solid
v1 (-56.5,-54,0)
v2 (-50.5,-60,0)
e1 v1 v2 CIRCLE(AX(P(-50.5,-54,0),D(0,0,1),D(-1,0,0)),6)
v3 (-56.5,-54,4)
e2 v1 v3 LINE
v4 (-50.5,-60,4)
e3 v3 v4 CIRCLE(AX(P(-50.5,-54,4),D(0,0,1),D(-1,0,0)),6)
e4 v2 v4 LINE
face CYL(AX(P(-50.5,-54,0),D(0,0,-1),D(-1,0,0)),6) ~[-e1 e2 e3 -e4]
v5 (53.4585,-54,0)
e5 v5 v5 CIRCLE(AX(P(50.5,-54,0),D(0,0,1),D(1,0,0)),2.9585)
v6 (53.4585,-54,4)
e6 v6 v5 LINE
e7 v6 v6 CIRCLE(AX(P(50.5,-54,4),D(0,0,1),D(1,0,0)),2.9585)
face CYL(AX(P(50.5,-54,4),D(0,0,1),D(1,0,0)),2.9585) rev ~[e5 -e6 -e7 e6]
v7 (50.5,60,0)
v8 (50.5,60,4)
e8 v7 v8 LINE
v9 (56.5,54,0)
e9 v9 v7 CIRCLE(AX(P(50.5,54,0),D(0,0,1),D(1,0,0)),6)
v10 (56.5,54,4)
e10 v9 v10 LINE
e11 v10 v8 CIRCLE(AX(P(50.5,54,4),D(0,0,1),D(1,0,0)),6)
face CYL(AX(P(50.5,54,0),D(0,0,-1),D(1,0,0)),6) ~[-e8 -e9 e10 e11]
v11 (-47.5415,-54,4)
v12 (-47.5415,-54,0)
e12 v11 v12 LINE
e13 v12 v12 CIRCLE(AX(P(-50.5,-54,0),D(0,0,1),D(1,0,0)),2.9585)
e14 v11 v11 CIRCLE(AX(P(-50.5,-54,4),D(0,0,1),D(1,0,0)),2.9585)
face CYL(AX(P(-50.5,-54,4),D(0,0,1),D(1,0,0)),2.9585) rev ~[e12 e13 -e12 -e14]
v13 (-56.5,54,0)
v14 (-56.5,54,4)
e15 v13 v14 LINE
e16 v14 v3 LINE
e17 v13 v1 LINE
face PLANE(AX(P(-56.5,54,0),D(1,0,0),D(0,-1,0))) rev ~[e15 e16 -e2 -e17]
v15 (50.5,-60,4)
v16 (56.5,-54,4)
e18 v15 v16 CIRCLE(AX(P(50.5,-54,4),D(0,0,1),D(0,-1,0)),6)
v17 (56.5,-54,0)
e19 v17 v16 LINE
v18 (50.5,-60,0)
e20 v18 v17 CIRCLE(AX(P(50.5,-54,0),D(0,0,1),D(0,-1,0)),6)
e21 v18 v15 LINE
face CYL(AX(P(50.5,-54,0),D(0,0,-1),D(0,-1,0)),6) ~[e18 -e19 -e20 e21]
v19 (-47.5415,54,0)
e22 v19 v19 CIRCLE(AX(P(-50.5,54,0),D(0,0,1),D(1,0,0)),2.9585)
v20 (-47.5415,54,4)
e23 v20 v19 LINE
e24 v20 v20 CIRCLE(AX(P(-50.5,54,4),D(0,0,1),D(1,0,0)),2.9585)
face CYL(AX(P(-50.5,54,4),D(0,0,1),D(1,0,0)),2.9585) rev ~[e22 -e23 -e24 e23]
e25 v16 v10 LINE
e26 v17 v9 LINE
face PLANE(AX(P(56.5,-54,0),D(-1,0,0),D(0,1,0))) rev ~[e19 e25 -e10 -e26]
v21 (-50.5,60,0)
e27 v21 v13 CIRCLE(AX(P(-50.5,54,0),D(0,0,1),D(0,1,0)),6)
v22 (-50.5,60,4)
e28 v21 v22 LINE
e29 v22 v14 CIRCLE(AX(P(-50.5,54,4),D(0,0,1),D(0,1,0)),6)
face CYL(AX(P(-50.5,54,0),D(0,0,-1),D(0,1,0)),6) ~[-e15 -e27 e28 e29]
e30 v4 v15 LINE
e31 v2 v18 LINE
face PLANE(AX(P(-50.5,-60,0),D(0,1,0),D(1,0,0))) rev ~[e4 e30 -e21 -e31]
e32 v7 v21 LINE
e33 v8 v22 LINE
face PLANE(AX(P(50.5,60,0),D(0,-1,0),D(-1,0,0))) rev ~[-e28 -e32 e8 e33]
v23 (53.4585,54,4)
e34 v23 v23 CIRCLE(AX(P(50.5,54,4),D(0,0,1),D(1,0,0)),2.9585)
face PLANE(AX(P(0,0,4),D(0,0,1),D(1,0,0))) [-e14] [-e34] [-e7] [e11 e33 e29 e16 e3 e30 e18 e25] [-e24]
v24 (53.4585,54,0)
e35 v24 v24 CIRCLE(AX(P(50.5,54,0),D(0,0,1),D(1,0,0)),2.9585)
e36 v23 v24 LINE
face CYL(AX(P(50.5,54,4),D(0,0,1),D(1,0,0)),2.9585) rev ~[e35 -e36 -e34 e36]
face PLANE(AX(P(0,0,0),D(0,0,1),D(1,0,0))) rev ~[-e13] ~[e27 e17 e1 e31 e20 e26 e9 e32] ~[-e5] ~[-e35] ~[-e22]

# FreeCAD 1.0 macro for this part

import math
import FreeCAD as App
import Part
import Sketcher

V = App.Vector

doc = App.newDocument("Part")
body = doc.addObject("PartDesign::Body", "Body")

# Sketch on XY plane
sketch1 = doc.addObject("Sketcher::SketchObject", "Sketch")
body.addObject(sketch1)
sketch1.AttachmentSupport = (doc.XY_Plane, [""])
sketch1.MapMode = "FlatFace"
sketch1.addGeometry(Part.LineSegment(V(56.5, -54, 0), V(56.5, 54, 0)), False)
sketch1.addGeometry(Part.ArcOfCircle(Part.Circle(V(50.5, 54, 0), V(0, 0, 1), 6), math.radians(0), math.radians(90)), False)
sketch1.addGeometry(Part.LineSegment(V(50.5, 60, 0), V(-50.5, 60, 0)), False)
sketch1.addGeometry(Part.ArcOfCircle(Part.Circle(V(-50.5, 54, 0), V(0, 0, 1), 6), math.radians(90), math.radians(180)), False)
sketch1.addGeometry(Part.LineSegment(V(-56.5, 54, 0), V(-56.5, -54, 0)), False)
sketch1.addGeometry(Part.ArcOfCircle(Part.Circle(V(-50.5, -54, 0), V(0, 0, 1), 6), math.radians(180), math.radians(270)), False)
sketch1.addGeometry(Part.LineSegment(V(-50.5, -60, 0), V(50.5, -60, 0)), False)
sketch1.addGeometry(Part.ArcOfCircle(Part.Circle(V(50.5, -54, 0), V(0, 0, 1), 6), math.radians(-90), math.radians(0)), False)
sketch1.addGeometry(Part.Circle(V(-50.5, -54, 0), V(0, 0, 1), 2.5), False)
sketch1.addGeometry(Part.Circle(V(50.5, -54, 0), V(0, 0, 1), 2.5), False)
sketch1.addGeometry(Part.Circle(V(-50.5, 54, 0), V(0, 0, 1), 2.5), False)
sketch1.addGeometry(Part.Circle(V(50.5, 54, 0), V(0, 0, 1), 2.5), False)
sketch1.addConstraint(Sketcher.Constraint("Tangent", 0, 2, 1, 1))
sketch1.addConstraint(Sketcher.Constraint("Tangent", 1, 2, 2, 1))
sketch1.addConstraint(Sketcher.Constraint("Tangent", 2, 2, 3, 1))
sketch1.addConstraint(Sketcher.Constraint("Tangent", 3, 2, 4, 1))
sketch1.addConstraint(Sketcher.Constraint("Tangent", 4, 2, 5, 1))
sketch1.addConstraint(Sketcher.Constraint("Tangent", 5, 2, 6, 1))
sketch1.addConstraint(Sketcher.Constraint("Tangent", 6, 2, 7, 1))
sketch1.addConstraint(Sketcher.Constraint("Tangent", 7, 2, 0, 1))
sketch1.addConstraint(Sketcher.Constraint("Vertical", 0))
sketch1.addConstraint(Sketcher.Constraint("Horizontal", 2))
sketch1.addConstraint(Sketcher.Constraint("Vertical", 4))
sketch1.addConstraint(Sketcher.Constraint("Horizontal", 6))
sketch1.addConstraint(Sketcher.Constraint("Coincident", 8, 3, 5, 3))
sketch1.addConstraint(Sketcher.Constraint("Coincident", 9, 3, 7, 3))
sketch1.addConstraint(Sketcher.Constraint("Coincident", 10, 3, 3, 3))
sketch1.addConstraint(Sketcher.Constraint("Coincident", 11, 3, 1, 3))
sketch1.addConstraint(Sketcher.Constraint("Equal", 1, 3))
sketch1.addConstraint(Sketcher.Constraint("Equal", 3, 5))
sketch1.addConstraint(Sketcher.Constraint("Equal", 5, 7))
sketch1.addConstraint(Sketcher.Constraint("Equal", 8, 9))
sketch1.addConstraint(Sketcher.Constraint("Equal", 9, 10))
sketch1.addConstraint(Sketcher.Constraint("Equal", 10, 11))
sketch1.addConstraint(Sketcher.Constraint("Symmetric", 1, 3, 5, 3, -1, 1))
sketch1.addConstraint(Sketcher.Constraint("Radius", 1, 6.0))
sketch1.addConstraint(Sketcher.Constraint("DistanceX", 2, 2, 2, 1, 101.0))
sketch1.addConstraint(Sketcher.Constraint("DistanceY", 0, 1, 0, 2, 108.0))
sketch1.addConstraint(Sketcher.Constraint("Diameter", 8, 4.917))
pad1 = doc.addObject("PartDesign::Pad", "Pad")
body.addObject(pad1)
pad1.Profile = sketch1
pad1.Length = 4

# Sketch on XY plane
sketch2 = doc.addObject("Sketcher::SketchObject", "Sketch001")
body.addObject(sketch2)
sketch2.AttachmentSupport = (doc.XY_Plane, [""])
sketch2.MapMode = "FlatFace"
sketch2.AttachmentOffset = App.Placement(V(0, 0, 4), App.Rotation())
sketch2.addGeometry(Part.Circle(V(50.5, 54, 0), V(0, 0, 1), 3), False)
sketch2.addGeometry(Part.Circle(V(50.5, -54, 0), V(0, 0, 1), 3), False)
sketch2.addGeometry(Part.Circle(V(-50.5, 54, 0), V(0, 0, 1), 3), False)
sketch2.addGeometry(Part.Circle(V(-50.5, -54, 0), V(0, 0, 1), 3), False)
sketch2.addConstraint(Sketcher.Constraint("Equal", 0, 1))
sketch2.addConstraint(Sketcher.Constraint("Equal", 1, 2))
sketch2.addConstraint(Sketcher.Constraint("Equal", 2, 3))
sketch2.addConstraint(Sketcher.Constraint("Symmetric", 1, 3, 2, 3, -1, 1))
sketch2.addConstraint(Sketcher.Constraint("Symmetric", 0, 3, 3, 3, -1, 1))
sketch2.addConstraint(Sketcher.Constraint("Symmetric", 0, 3, 2, 3, -2))
sketch2.addConstraint(Sketcher.Constraint("Diameter", 0, 5.917))
sketch2.addConstraint(Sketcher.Constraint("DistanceY", -1, 1, 0, 3, 54.0))
sketch2.addConstraint(Sketcher.Constraint("DistanceX", 2, 3, 0, 3, 101.0))
pocket1 = doc.addObject("PartDesign::Pocket", "Pocket")
body.addObject(pocket1)
pocket1.Profile = sketch2
pocket1.Length = 4

doc.recompute()
